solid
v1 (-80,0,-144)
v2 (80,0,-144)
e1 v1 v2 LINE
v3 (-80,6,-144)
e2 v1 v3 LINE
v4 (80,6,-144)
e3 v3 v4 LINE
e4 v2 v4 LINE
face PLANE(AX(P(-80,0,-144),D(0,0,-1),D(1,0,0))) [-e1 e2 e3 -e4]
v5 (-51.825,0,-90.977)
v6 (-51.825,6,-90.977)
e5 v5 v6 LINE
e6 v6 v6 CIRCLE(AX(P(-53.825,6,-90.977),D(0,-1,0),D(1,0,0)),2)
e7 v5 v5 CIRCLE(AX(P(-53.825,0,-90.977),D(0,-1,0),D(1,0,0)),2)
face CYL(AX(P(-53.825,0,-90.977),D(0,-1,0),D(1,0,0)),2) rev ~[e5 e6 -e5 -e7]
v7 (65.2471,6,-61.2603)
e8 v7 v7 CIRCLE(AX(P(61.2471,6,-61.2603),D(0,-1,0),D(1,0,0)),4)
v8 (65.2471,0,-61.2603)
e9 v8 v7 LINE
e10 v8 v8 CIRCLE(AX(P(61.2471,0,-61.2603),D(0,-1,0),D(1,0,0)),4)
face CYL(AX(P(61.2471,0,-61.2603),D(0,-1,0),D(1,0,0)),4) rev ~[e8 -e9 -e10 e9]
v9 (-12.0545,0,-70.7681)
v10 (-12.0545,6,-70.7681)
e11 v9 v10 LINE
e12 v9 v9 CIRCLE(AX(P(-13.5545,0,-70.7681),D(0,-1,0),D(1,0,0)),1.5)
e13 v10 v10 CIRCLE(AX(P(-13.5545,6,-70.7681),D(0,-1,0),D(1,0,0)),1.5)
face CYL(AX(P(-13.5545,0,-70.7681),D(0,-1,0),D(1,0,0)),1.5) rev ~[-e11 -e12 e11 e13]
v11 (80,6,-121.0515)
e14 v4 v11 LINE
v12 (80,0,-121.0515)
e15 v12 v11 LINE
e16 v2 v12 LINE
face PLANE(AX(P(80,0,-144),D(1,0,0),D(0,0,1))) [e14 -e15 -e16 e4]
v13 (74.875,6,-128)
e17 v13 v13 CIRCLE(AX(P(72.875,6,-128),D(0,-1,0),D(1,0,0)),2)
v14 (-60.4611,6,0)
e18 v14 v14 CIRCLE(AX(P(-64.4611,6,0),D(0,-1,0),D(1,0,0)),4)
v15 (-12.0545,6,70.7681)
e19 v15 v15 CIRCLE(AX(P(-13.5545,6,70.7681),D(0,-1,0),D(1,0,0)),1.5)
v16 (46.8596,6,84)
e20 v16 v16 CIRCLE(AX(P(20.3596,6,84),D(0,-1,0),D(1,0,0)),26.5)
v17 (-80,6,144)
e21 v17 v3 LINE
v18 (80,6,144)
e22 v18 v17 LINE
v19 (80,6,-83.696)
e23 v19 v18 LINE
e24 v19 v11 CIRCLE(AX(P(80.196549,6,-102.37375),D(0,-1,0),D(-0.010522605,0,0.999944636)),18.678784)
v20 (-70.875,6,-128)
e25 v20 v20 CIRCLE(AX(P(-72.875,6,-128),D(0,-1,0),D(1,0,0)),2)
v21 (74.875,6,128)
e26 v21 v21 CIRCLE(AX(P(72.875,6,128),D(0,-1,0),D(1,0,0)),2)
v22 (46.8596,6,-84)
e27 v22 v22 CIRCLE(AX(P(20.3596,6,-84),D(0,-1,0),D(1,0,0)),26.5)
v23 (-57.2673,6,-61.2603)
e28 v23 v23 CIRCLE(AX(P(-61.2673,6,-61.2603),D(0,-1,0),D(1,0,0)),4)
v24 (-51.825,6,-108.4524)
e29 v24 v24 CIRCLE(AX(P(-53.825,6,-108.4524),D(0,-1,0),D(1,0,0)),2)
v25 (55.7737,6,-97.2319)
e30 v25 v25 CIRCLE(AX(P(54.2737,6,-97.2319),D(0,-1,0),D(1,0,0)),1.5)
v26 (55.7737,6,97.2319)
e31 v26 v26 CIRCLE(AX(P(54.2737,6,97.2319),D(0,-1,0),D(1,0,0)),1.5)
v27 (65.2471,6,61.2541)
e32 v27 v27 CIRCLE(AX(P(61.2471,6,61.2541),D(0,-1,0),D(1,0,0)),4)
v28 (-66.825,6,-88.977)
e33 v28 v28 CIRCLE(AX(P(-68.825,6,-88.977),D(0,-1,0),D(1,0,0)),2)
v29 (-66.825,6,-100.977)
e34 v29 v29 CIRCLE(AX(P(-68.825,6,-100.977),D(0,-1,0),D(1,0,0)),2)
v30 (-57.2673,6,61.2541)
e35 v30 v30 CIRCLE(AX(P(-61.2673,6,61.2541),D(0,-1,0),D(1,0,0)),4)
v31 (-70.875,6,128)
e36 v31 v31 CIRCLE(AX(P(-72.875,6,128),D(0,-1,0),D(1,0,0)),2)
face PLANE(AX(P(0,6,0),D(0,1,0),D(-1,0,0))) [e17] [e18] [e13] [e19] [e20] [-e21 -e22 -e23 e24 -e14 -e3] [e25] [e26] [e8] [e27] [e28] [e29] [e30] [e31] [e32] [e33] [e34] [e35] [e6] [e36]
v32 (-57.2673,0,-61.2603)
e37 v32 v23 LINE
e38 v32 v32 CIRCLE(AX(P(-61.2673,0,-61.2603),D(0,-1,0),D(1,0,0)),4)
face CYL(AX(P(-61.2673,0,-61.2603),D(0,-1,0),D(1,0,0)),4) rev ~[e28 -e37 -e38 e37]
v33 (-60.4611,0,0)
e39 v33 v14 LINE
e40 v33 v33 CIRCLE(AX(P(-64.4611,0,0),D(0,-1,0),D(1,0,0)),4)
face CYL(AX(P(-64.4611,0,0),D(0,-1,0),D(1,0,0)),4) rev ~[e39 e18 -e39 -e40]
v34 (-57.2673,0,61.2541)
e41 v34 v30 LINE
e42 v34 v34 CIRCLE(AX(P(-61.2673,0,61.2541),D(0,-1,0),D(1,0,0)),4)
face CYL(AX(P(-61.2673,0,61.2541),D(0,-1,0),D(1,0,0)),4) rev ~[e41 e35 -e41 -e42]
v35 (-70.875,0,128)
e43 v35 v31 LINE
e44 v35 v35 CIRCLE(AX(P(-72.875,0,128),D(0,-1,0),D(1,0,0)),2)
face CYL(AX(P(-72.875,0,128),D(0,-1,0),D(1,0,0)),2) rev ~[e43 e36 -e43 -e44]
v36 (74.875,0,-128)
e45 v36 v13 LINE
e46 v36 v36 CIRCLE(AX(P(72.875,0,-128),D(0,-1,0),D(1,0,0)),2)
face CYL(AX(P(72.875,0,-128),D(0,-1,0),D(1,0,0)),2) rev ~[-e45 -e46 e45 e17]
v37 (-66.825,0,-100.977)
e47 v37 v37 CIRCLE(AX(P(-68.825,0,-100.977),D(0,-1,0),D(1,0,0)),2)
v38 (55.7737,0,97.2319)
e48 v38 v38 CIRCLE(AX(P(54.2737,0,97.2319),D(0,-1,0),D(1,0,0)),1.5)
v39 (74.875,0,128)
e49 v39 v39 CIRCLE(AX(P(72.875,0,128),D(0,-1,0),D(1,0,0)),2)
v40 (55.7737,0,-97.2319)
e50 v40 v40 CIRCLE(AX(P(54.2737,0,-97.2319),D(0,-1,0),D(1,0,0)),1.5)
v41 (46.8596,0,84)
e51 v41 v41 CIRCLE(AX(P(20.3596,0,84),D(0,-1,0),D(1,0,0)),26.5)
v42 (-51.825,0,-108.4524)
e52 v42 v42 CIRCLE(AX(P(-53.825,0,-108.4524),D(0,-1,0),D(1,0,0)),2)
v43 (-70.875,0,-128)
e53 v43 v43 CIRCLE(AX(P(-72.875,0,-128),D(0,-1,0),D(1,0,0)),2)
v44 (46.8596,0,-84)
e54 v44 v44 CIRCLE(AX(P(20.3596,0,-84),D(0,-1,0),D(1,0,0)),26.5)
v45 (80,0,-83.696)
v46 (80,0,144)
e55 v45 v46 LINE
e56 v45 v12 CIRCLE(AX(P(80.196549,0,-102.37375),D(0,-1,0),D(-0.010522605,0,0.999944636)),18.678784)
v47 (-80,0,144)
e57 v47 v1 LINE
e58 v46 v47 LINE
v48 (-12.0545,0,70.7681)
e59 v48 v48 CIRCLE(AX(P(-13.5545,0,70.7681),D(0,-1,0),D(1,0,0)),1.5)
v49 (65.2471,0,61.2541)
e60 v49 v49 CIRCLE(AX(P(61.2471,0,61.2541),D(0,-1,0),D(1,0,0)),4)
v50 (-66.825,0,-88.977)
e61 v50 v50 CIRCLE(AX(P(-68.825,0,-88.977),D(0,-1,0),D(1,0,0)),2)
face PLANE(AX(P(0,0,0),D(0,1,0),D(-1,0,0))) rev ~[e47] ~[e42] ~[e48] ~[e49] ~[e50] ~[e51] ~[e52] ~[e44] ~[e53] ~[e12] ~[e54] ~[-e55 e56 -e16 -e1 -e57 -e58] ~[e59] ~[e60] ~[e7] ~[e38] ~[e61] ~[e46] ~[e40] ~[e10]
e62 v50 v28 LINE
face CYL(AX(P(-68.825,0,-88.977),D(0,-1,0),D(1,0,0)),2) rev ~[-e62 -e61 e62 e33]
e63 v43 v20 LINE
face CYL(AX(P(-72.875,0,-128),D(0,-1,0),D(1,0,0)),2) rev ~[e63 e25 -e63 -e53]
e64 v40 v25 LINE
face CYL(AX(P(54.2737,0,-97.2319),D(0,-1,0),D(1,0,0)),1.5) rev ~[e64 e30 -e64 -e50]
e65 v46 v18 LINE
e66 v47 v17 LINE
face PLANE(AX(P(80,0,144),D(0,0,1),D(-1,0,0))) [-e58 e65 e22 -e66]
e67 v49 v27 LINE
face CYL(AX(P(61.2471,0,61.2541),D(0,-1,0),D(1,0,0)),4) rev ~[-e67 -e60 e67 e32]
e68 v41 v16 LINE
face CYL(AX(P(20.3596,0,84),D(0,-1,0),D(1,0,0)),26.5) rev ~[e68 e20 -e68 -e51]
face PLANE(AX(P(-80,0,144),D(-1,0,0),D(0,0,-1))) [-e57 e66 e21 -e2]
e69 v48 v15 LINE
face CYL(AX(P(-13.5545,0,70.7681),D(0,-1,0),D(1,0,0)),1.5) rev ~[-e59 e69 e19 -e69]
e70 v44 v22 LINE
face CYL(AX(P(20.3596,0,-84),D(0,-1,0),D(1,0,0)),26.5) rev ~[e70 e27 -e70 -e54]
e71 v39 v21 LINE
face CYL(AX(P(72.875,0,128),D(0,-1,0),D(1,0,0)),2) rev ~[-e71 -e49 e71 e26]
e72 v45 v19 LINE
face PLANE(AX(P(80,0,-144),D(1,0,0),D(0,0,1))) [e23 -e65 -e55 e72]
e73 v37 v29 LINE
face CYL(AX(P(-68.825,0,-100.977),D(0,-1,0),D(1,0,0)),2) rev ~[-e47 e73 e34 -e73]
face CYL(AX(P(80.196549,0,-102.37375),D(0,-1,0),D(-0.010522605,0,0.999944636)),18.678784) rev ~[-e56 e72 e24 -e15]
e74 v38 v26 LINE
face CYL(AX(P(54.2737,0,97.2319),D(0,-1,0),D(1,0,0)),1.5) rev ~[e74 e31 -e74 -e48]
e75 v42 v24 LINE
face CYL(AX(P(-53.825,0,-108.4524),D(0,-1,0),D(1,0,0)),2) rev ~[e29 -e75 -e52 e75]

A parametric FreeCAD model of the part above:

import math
import FreeCAD as App
import Part
import Sketcher
Q = App.Units.Quantity


def add_polygon(sketch, points):
    """Adds a closed chain of lines whose ends are joined by coincident constraints."""
    first, n = sketch.GeometryCount, len(points)
    for a, b in zip(points, points[1:] + points[:1]):
        sketch.addGeometry(Part.LineSegment(App.Vector(*a, 0), App.Vector(*b, 0)), False)
    for i in range(n):
        sketch.addConstraint(Sketcher.Constraint("Coincident", first + i, 2, first + (i + 1) % n, 1))

doc = App.newDocument("Part")
params = doc.addObject("Spreadsheet::Sheet", "Params")
for row, (alias, value) in enumerate([
    ("sketch1_width", "160 mm"),
    ("sketch1_height", "288 mm"),
    ("pad1_length", "6 mm"),
    ("sketch2_diameter", "8 mm"),
    ("sketch2_diameter2", "53 mm"),
    ("pocket1_length", "10 mm"),
    ("sketch3_diameter", "3 mm"),
    ("pocket2_length", "10 mm"),
    ("sketch4_diameter", "4 mm"),
    ("pocket3_length", "10 mm"),
    ("pocket4_length", "10 mm"),
    ("sketch6_diameter", "8 mm"),
    ("sketch7_diameter", "4 mm"),
], start=1):
    params.set(f"A{row}", alias)
    params.set(f"B{row}", "=" + value)
    params.setAlias(f"B{row}", alias)

body = doc.addObject("PartDesign::Body", "Body")

sketch1 = body.newObject("Sketcher::SketchObject", "Sketch")
sketch1.AttachmentSupport = (doc.getObject("XZ_Plane"), [""])
sketch1.MapMode = "FlatFace"
add_polygon(sketch1, [(-80, 144), (80, 144), (80, -144), (-80, -144)])
sketch1.addConstraint([
    Sketcher.Constraint("Horizontal", 0),
    Sketcher.Constraint("Vertical", 1),
    Sketcher.Constraint("Horizontal", 2),
    Sketcher.Constraint("Vertical", 3),
    Sketcher.Constraint("Symmetric", 0, 2, 2, 2, -1, 1),
    Sketcher.Constraint("DistanceX", 0, 1, 0, 2, Q("160 mm")),
    Sketcher.Constraint("DistanceY", 1, 2, 1, 1, Q("288 mm")),
])
sketch1.setExpression("Constraints[9]", "Params.sketch1_width")
sketch1.setExpression("Constraints[10]", "Params.sketch1_height")
pad1 = body.newObject("PartDesign::Pad", "Pad")
pad1.Profile = sketch1
pad1.setExpression("Length", "Params.pad1_length")
pad1.Reversed = True

sketch2 = body.newObject("Sketcher::SketchObject", "Sketch001")
sketch2.AttachmentSupport = (doc.getObject("XZ_Plane"), [""])
sketch2.MapMode = "FlatFace"
sketch2.addGeometry([
    Part.Circle(App.Vector(-61.3, 61.3, 0), App.Vector(0, 0, 1), 4),
    Part.Circle(App.Vector(-61.3, -61.3, 0), App.Vector(0, 0, 1), 4),
    Part.Circle(App.Vector(61.2, -61.3, 0), App.Vector(0, 0, 1), 4),
    Part.Circle(App.Vector(61.2, 61.3, 0), App.Vector(0, 0, 1), 4),
    Part.Circle(App.Vector(20.4, -84, 0), App.Vector(0, 0, 1), 26.5),
    Part.Circle(App.Vector(20.4, 84, 0), App.Vector(0, 0, 1), 26.5),
], False)
sketch2.addConstraint([
    Sketcher.Constraint("Equal", 0, 1),
    Sketcher.Constraint("Equal", 1, 2),
    Sketcher.Constraint("Equal", 2, 3),
    Sketcher.Constraint("Equal", 4, 5),
    Sketcher.Constraint("Symmetric", 4, 3, 5, 3, -1),
    Sketcher.Constraint("Horizontal", 1, 3, 2, 3),
    Sketcher.Constraint("Horizontal", 0, 3, 3, 3),
    Sketcher.Constraint("Vertical", 0, 3, 1, 3),
    Sketcher.Constraint("Vertical", 2, 3, 3, 3),
    Sketcher.Constraint("Diameter", 0, Q("8 mm")),
    Sketcher.Constraint("Diameter", 4, Q("53 mm")),
    Sketcher.Constraint("DistanceY", 4, 3, -1, 1, Q("84 mm")),
    Sketcher.Constraint("DistanceY", -1, 1, 0, 3, Q("61.254 mm")),
    Sketcher.Constraint("DistanceX", -1, 1, 2, 3, Q("61.247 mm")),
    Sketcher.Constraint("DistanceX", 1, 3, 4, 3, Q("81.627 mm")),
    Sketcher.Constraint("DistanceX", 0, 3, -1, 1, Q("61.2673 mm")),
    Sketcher.Constraint("DistanceY", 1, 3, -1, 1, Q("61.2603 mm")),
])
sketch2.setExpression("Constraints[9]", "Params.sketch2_diameter")
sketch2.setExpression("Constraints[10]", "Params.sketch2_diameter2")
pocket1 = body.newObject("PartDesign::Pocket", "Pocket")
pocket1.Profile = sketch2
pocket1.setExpression("Length", "Params.pocket1_length")

sketch3 = body.newObject("Sketcher::SketchObject", "Sketch002")
sketch3.AttachmentSupport = (doc.getObject("XZ_Plane"), [""])
sketch3.MapMode = "FlatFace"
sketch3.addGeometry([
    Part.Circle(App.Vector(-13.6, -70.8, 0), App.Vector(0, 0, 1), 1.5),
    Part.Circle(App.Vector(54.3, -97.2, 0), App.Vector(0, 0, 1), 1.5),
    Part.Circle(App.Vector(54.3, 97.2, 0), App.Vector(0, 0, 1), 1.5),
    Part.Circle(App.Vector(-13.6, 70.8, 0), App.Vector(0, 0, 1), 1.5),
], False)
sketch3.addConstraint([
    Sketcher.Constraint("Equal", 0, 1),
    Sketcher.Constraint("Equal", 1, 2),
    Sketcher.Constraint("Equal", 2, 3),
    Sketcher.Constraint("Symmetric", 1, 3, 2, 3, -1),
    Sketcher.Constraint("Symmetric", 0, 3, 3, 3, -1),
    Sketcher.Constraint("Diameter", 0, Q("3 mm")),
    Sketcher.Constraint("DistanceY", 0, 3, 2, 3, Q("168 mm")),
    Sketcher.Constraint("DistanceY", 0, 3, -1, 1, Q("70.768 mm")),
    Sketcher.Constraint("DistanceX", 0, 3, -1, 1, Q("13.5545 mm")),
    Sketcher.Constraint("DistanceX", -1, 1, 1, 3, Q("54.2737 mm")),
])
sketch3.setExpression("Constraints[5]", "Params.sketch3_diameter")
pocket2 = body.newObject("PartDesign::Pocket", "Pocket001")
pocket2.Profile = sketch3
pocket2.setExpression("Length", "Params.pocket2_length")

sketch4 = body.newObject("Sketcher::SketchObject", "Sketch003")
sketch4.AttachmentSupport = (doc.getObject("XZ_Plane"), [""])
sketch4.MapMode = "FlatFace"
sketch4.addGeometry([
    Part.Circle(App.Vector(-68.8, -101, 0), App.Vector(0, 0, 1), 2),
    Part.Circle(App.Vector(-68.8, -89, 0), App.Vector(0, 0, 1), 2),
    Part.Circle(App.Vector(-53.8, -91, 0), App.Vector(0, 0, 1), 2),
    Part.Circle(App.Vector(-53.8, -108.5, 0), App.Vector(0, 0, 1), 2),
], False)
sketch4.addConstraint([
    Sketcher.Constraint("Equal", 0, 1),
    Sketcher.Constraint("Equal", 1, 2),
    Sketcher.Constraint("Equal", 2, 3),
    Sketcher.Constraint("Vertical", 0, 3, 1, 3),
    Sketcher.Constraint("Vertical", 2, 3, 3, 3),
    Sketcher.Constraint("Diameter", 0, Q("4 mm")),
    Sketcher.Constraint("DistanceY", 0, 3, 1, 3, Q("12 mm")),
    Sketcher.Constraint("DistanceX", 1, 3, 2, 3, Q("15 mm")),
    Sketcher.Constraint("DistanceY", 2, 3, 1, 3, Q("2 mm")),
    Sketcher.Constraint("DistanceX", 0, 3, -1, 1, Q("68.825 mm")),
    Sketcher.Constraint("DistanceY", 0, 3, -1, 1, Q("100.977 mm")),
    Sketcher.Constraint("DistanceY", 3, 3, -1, 1, Q("108.4524 mm")),
])
sketch4.setExpression("Constraints[5]", "Params.sketch4_diameter")
pocket3 = body.newObject("PartDesign::Pocket", "Pocket002")
pocket3.Profile = sketch4
pocket3.setExpression("Length", "Params.pocket3_length")

sketch5 = body.newObject("Sketcher::SketchObject", "Sketch004")
sketch5.AttachmentSupport = (doc.getObject("XZ_Plane"), [""])
sketch5.MapMode = "FlatFace"
sketch5.addGeometry([
    Part.LineSegment(App.Vector(80, -121, 0), App.Vector(80, -84, 0)),
    Part.ArcOfCircle(Part.Circle(App.Vector(80, -102, 0), App.Vector(0, 0, 1), 19), math.radians(91), math.radians(269)),
], False)
sketch5.addConstraint([
    Sketcher.Constraint("Coincident", 0, 1, 1, 2),
    Sketcher.Constraint("Coincident", 1, 1, 0, 2),
    Sketcher.Constraint("Vertical", 0),
    Sketcher.Constraint("DistanceX", -1, 1, 0, 1, Q("80 mm")),
    Sketcher.Constraint("Radius", 1, Q("18.6788 mm")),
    Sketcher.Constraint("DistanceY", 0, 1, 0, 2, Q("37.3555 mm")),
    Sketcher.Constraint("DistanceY", 1, 1, -1, 1, Q("83.696 mm")),
])
pocket4 = body.newObject("PartDesign::Pocket", "Pocket003")
pocket4.Profile = sketch5
pocket4.setExpression("Length", "Params.pocket4_length")

sketch6 = body.newObject("Sketcher::SketchObject", "Sketch005")
sketch6.AttachmentSupport = (doc.getObject("XZ_Plane"), [""])
sketch6.MapMode = "FlatFace"
sketch6.addGeometry(Part.Circle(App.Vector(-64.5, 0, 0), App.Vector(0, 0, 1), 4), False)
sketch6.addConstraint([
    Sketcher.Constraint("PointOnObject", 0, 3, -1),
    Sketcher.Constraint("Diameter", 0, Q("8 mm")),
    Sketcher.Constraint("DistanceX", 0, 3, -1, 1, Q("64.461 mm")),
])
sketch6.setExpression("Constraints[1]", "Params.sketch6_diameter")
pocket5 = body.newObject("PartDesign::Pocket", "Pocket004")
pocket5.Profile = sketch6
pocket5.Type = "ThroughAll"

sketch7 = body.newObject("Sketcher::SketchObject", "Sketch006")
sketch7.AttachmentSupport = (doc.getObject("XZ_Plane"), [""])
sketch7.MapMode = "FlatFace"
sketch7.addGeometry([
    Part.Circle(App.Vector(72.9, -128, 0), App.Vector(0, 0, 1), 2),
    Part.Circle(App.Vector(-72.9, -128, 0), App.Vector(0, 0, 1), 2),
    Part.Circle(App.Vector(-72.9, 128, 0), App.Vector(0, 0, 1), 2),
    Part.Circle(App.Vector(72.9, 128, 0), App.Vector(0, 0, 1), 2),
], False)
sketch7.addConstraint([
    Sketcher.Constraint("Equal", 0, 1),
    Sketcher.Constraint("Equal", 1, 2),
    Sketcher.Constraint("Equal", 2, 3),
    Sketcher.Constraint("Symmetric", 0, 3, 2, 3, -1, 1),
    Sketcher.Constraint("Symmetric", 1, 3, 3, 3, -1, 1),
    Sketcher.Constraint("Symmetric", 0, 3, 1, 3, -2),
    Sketcher.Constraint("Diameter", 0, Q("4 mm")),
    Sketcher.Constraint("DistanceY", 0, 3, -1, 1, Q("128 mm")),
    Sketcher.Constraint("DistanceX", 1, 3, 0, 3, Q("145.75 mm")),
])
sketch7.setExpression("Constraints[6]", "Params.sketch7_diameter")
pocket6 = body.newObject("PartDesign::Pocket", "Pocket005")
pocket6.Profile = sketch7
pocket6.Type = "ThroughAll"

doc.recompute()
